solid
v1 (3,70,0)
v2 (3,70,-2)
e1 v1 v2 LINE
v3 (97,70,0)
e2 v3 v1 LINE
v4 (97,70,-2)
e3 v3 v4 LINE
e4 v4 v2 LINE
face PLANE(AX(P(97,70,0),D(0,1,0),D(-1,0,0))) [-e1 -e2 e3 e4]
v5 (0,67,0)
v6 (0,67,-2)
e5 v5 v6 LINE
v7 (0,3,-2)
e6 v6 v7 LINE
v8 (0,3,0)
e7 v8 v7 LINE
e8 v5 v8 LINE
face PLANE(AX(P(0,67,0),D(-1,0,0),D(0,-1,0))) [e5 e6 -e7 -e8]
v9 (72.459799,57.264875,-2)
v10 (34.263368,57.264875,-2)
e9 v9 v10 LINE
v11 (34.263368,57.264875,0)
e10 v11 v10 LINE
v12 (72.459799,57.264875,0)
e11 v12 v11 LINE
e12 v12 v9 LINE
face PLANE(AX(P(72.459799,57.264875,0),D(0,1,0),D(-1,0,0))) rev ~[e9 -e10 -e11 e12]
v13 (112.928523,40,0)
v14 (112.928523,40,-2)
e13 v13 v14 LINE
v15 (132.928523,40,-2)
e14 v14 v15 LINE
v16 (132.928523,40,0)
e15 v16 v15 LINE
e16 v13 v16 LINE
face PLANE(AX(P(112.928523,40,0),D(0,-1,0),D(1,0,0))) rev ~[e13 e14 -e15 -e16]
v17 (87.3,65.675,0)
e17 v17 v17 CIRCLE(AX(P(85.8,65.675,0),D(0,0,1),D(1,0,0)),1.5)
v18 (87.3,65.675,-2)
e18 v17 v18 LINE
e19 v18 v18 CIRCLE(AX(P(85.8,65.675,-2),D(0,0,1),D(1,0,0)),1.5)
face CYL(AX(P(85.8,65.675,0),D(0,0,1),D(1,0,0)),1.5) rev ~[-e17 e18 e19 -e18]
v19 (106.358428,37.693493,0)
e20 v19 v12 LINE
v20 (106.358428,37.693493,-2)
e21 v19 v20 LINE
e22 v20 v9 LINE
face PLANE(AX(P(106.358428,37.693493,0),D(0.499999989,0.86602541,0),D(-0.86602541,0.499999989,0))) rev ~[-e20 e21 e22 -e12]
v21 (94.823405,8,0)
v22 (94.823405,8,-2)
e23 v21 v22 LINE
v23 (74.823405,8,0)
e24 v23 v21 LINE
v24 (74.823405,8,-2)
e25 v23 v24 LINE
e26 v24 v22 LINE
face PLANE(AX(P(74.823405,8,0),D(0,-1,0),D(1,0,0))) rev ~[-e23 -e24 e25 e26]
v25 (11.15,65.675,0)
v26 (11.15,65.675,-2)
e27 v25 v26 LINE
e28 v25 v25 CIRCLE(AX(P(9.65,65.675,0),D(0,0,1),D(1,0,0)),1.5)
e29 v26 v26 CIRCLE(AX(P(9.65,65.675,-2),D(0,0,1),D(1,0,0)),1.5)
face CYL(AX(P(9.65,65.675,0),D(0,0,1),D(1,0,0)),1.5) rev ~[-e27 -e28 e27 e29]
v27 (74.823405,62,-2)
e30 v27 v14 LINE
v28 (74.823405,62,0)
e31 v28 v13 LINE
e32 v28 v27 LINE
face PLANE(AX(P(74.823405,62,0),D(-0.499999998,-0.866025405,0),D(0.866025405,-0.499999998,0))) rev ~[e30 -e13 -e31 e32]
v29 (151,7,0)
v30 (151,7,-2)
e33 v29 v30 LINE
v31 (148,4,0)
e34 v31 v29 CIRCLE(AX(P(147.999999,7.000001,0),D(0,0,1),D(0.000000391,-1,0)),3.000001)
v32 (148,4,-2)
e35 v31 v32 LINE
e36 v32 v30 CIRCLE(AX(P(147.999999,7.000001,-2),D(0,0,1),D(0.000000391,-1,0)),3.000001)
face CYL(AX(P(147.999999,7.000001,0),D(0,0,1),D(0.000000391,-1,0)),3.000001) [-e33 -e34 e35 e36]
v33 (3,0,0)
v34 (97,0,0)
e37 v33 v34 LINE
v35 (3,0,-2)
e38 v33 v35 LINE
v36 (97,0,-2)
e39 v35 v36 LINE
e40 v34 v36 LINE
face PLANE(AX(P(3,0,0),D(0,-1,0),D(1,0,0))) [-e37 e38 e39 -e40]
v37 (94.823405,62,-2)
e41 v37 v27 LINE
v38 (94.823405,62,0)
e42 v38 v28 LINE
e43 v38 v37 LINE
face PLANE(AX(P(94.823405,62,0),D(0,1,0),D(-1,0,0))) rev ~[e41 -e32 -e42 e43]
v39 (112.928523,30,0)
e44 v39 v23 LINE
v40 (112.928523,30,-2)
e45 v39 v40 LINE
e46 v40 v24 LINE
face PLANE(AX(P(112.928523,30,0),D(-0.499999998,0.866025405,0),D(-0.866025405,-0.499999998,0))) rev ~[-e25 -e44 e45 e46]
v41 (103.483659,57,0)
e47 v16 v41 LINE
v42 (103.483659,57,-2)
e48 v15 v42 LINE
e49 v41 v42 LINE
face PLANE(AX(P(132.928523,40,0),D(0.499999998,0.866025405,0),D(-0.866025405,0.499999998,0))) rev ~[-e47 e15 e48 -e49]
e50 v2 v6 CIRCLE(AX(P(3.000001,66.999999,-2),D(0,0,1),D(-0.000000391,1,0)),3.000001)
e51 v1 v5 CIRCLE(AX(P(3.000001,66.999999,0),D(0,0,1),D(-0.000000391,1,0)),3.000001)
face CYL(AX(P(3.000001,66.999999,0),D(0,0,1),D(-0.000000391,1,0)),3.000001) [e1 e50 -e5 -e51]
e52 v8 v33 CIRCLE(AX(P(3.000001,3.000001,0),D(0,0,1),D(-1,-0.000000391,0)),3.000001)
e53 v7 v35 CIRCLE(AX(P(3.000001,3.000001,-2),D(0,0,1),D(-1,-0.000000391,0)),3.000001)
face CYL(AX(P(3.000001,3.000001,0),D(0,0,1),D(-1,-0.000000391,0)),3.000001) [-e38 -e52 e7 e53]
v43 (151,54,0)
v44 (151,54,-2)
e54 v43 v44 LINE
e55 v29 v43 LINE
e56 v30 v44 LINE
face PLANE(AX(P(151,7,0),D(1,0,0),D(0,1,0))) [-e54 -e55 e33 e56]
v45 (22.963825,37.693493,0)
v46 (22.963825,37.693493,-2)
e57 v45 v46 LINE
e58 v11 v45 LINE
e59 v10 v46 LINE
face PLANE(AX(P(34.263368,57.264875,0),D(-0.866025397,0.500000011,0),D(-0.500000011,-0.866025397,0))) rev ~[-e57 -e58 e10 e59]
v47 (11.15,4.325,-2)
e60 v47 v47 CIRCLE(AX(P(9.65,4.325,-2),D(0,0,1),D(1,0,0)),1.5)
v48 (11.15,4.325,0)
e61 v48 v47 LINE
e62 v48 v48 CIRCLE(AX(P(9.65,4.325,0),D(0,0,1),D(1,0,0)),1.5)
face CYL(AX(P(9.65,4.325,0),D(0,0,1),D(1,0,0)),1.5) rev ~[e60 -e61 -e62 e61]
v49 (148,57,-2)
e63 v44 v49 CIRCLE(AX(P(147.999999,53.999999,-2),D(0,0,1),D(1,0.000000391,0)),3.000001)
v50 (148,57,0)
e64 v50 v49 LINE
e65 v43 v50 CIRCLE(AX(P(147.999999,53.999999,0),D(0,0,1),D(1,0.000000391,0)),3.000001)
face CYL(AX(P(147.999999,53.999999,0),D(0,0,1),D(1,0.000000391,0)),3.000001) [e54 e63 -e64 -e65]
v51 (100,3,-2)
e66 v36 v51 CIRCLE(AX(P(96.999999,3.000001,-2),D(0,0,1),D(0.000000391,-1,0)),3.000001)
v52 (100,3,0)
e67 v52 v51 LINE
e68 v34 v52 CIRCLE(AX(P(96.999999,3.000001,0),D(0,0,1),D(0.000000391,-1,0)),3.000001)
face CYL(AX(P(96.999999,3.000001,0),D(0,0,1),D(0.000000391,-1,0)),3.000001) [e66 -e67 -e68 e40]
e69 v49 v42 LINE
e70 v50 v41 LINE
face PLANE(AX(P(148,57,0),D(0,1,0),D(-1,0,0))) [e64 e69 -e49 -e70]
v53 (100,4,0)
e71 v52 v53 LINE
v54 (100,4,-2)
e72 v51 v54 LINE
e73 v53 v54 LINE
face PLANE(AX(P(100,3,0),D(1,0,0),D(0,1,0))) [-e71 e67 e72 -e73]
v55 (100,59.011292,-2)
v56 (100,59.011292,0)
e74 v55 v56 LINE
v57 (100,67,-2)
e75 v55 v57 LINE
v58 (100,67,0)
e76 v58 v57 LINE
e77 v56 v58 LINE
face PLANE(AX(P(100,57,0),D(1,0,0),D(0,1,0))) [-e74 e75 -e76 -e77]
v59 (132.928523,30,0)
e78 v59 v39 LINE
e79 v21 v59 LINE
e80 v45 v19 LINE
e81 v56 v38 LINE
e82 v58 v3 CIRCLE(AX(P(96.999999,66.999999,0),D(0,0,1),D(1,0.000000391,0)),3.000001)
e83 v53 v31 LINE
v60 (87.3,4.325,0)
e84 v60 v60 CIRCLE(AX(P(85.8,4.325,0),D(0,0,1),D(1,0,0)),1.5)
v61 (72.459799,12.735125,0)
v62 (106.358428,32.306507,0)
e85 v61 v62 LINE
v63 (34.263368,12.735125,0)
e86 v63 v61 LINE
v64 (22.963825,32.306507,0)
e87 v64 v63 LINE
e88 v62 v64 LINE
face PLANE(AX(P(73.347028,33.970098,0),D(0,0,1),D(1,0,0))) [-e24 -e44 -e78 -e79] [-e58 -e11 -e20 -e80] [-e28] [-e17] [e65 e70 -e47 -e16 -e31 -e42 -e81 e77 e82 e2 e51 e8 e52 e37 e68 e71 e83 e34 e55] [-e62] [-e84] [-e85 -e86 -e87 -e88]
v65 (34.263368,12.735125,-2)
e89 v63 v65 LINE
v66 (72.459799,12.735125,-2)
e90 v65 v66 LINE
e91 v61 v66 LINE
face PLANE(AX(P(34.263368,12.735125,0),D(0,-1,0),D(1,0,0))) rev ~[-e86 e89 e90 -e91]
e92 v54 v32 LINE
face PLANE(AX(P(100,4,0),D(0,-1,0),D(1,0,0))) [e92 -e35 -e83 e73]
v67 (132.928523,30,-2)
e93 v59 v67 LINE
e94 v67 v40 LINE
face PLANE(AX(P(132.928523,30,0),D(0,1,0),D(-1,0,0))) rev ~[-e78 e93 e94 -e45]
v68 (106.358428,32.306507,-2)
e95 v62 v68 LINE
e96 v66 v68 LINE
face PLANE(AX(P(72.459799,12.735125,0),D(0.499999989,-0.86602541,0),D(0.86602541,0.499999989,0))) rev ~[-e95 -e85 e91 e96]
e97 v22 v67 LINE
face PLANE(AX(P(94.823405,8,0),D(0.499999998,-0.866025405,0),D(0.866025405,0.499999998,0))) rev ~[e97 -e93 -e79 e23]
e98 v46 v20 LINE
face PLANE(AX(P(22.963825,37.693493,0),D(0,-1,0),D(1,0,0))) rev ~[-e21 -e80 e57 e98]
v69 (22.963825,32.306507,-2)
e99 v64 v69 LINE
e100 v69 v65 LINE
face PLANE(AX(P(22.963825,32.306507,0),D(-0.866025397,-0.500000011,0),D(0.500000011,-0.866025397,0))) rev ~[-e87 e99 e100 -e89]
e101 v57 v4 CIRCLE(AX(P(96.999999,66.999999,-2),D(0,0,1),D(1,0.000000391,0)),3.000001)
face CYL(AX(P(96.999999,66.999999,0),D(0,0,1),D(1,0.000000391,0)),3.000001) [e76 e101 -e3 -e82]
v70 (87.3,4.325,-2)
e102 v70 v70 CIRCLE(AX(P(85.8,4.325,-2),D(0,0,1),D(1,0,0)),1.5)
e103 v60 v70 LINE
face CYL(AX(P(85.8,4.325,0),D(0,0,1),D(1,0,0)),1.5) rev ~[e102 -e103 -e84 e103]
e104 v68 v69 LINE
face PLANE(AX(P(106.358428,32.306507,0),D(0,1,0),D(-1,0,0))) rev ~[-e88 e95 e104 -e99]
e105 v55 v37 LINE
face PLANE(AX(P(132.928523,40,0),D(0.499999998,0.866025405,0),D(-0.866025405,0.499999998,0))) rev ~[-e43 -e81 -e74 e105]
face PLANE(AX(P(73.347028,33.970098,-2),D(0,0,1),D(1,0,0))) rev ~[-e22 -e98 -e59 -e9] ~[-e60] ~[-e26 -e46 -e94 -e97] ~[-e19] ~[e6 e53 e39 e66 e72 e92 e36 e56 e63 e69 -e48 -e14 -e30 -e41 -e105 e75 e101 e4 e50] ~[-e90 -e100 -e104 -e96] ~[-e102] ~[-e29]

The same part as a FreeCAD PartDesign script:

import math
import FreeCAD as App
import Part
import Sketcher
Q = App.Units.Quantity

doc = App.newDocument("Part")
body = doc.addObject("PartDesign::Body", "Body")

sketch1 = body.newObject("Sketcher::SketchObject", "Sketch")
sketch1.AttachmentSupport = (doc.getObject("XY_Plane"), [""])
sketch1.MapMode = "FlatFace"
sketch1.addGeometry(Part.LineSegment(App.Vector(97, 70, 0), App.Vector(3, 70, 0)), False)
sketch1.addGeometry(Part.ArcOfCircle(Part.Circle(App.Vector(3, 67, 0), App.Vector(0, 0, 1), 3), math.radians(90), math.radians(180)), False)
sketch1.addGeometry(Part.LineSegment(App.Vector(0, 67, 0), App.Vector(0, 3, 0)), False)
sketch1.addGeometry(Part.ArcOfCircle(Part.Circle(App.Vector(3, 3, 0), App.Vector(0, 0, 1), 3), math.radians(-180), math.radians(-90)), False)
sketch1.addGeometry(Part.LineSegment(App.Vector(3, 0, 0), App.Vector(97, 0, 0)), False)
sketch1.addGeometry(Part.ArcOfCircle(Part.Circle(App.Vector(97, 3, 0), App.Vector(0, 0, 1), 3), math.radians(-90), math.radians(0)), False)
sketch1.addGeometry(Part.LineSegment(App.Vector(100, 3, 0), App.Vector(100, 4, 0)), False)
sketch1.addGeometry(Part.LineSegment(App.Vector(100, 4, 0), App.Vector(148, 4, 0)), False)
sketch1.addGeometry(Part.ArcOfCircle(Part.Circle(App.Vector(148, 7, 0), App.Vector(0, 0, 1), 3), math.radians(-90), math.radians(0)), False)
sketch1.addGeometry(Part.LineSegment(App.Vector(151, 7, 0), App.Vector(151, 54, 0)), False)
sketch1.addGeometry(Part.ArcOfCircle(Part.Circle(App.Vector(148, 54, 0), App.Vector(0, 0, 1), 3), math.radians(0), math.radians(90)), False)
sketch1.addGeometry(Part.LineSegment(App.Vector(148, 57, 0), App.Vector(100, 57, 0)), False)
sketch1.addGeometry(Part.LineSegment(App.Vector(100, 57, 0), App.Vector(100, 67, 0)), False)
sketch1.addGeometry(Part.ArcOfCircle(Part.Circle(App.Vector(97, 67, 0), App.Vector(0, 0, 1), 3), math.radians(0), math.radians(90)), False)
sketch1.addGeometry(Part.Circle(App.Vector(9.7, 4.3, 0), App.Vector(0, 0, 1), 1.5), False)
sketch1.addGeometry(Part.Circle(App.Vector(85.8, 4.3, 0), App.Vector(0, 0, 1), 1.5), False)
sketch1.addGeometry(Part.Circle(App.Vector(9.7, 65.7, 0), App.Vector(0, 0, 1), 1.5), False)
sketch1.addGeometry(Part.Circle(App.Vector(85.8, 65.7, 0), App.Vector(0, 0, 1), 1.5), False)
sketch1.addConstraint(Sketcher.Constraint("Tangent", 0, 2, 1, 1))
sketch1.addConstraint(Sketcher.Constraint("Tangent", 1, 2, 2, 1))
sketch1.addConstraint(Sketcher.Constraint("Tangent", 2, 2, 3, 1))
sketch1.addConstraint(Sketcher.Constraint("Tangent", 3, 2, 4, 1))
sketch1.addConstraint(Sketcher.Constraint("Tangent", 4, 2, 5, 1))
sketch1.addConstraint(Sketcher.Constraint("Tangent", 5, 2, 6, 1))
sketch1.addConstraint(Sketcher.Constraint("Coincident", 6, 2, 7, 1))
sketch1.addConstraint(Sketcher.Constraint("Tangent", 7, 2, 8, 1))
sketch1.addConstraint(Sketcher.Constraint("Tangent", 8, 2, 9, 1))
sketch1.addConstraint(Sketcher.Constraint("Tangent", 9, 2, 10, 1))
sketch1.addConstraint(Sketcher.Constraint("Tangent", 10, 2, 11, 1))
sketch1.addConstraint(Sketcher.Constraint("Coincident", 11, 2, 12, 1))
sketch1.addConstraint(Sketcher.Constraint("Tangent", 12, 2, 13, 1))
sketch1.addConstraint(Sketcher.Constraint("Tangent", 13, 2, 0, 1))
sketch1.addConstraint(Sketcher.Constraint("Horizontal", 0))
sketch1.addConstraint(Sketcher.Constraint("Vertical", 2))
sketch1.addConstraint(Sketcher.Constraint("Horizontal", 4))
sketch1.addConstraint(Sketcher.Constraint("Vertical", 6))
sketch1.addConstraint(Sketcher.Constraint("Horizontal", 7))
sketch1.addConstraint(Sketcher.Constraint("Vertical", 9))
sketch1.addConstraint(Sketcher.Constraint("Horizontal", 11))
sketch1.addConstraint(Sketcher.Constraint("Vertical", 12))
sketch1.addConstraint(Sketcher.Constraint("Equal", 1, 3))
sketch1.addConstraint(Sketcher.Constraint("Equal", 3, 5))
sketch1.addConstraint(Sketcher.Constraint("Equal", 5, 8))
sketch1.addConstraint(Sketcher.Constraint("Equal", 8, 10))
sketch1.addConstraint(Sketcher.Constraint("Equal", 10, 13))
sketch1.addConstraint(Sketcher.Constraint("Equal", 14, 15))
sketch1.addConstraint(Sketcher.Constraint("Equal", 15, 16))
sketch1.addConstraint(Sketcher.Constraint("Equal", 16, 17))
sketch1.addConstraint(Sketcher.Constraint("PointOnObject", 1, 2, -2))
sketch1.addConstraint(Sketcher.Constraint("PointOnObject", 3, 2, -1))
sketch1.addConstraint(Sketcher.Constraint("Horizontal", 14, 3, 15, 3))
sketch1.addConstraint(Sketcher.Constraint("Horizontal", 16, 3, 17, 3))
sketch1.addConstraint(Sketcher.Constraint("Vertical", 5, 3, 13, 3))
sketch1.addConstraint(Sketcher.Constraint("Vertical", 14, 3, 16, 3))
sketch1.addConstraint(Sketcher.Constraint("Vertical", 15, 3, 17, 3))
sketch1.addConstraint(Sketcher.Constraint("Diameter", 14, 3.0))
sketch1.addConstraint(Sketcher.Constraint("Radius", 1, 3.000001))
sketch1.addConstraint(Sketcher.Constraint("DistanceX", 0, 2, 0, 1, 94.0))
sketch1.addConstraint(Sketcher.Constraint("DistanceX", 7, 1, 7, 2, 48.0))
sketch1.addConstraint(Sketcher.Constraint("DistanceY", 2, 2, 2, 1, 64.0))
sketch1.addConstraint(Sketcher.Constraint("DistanceY", 6, 1, 6, 2, 1.0))
sketch1.addConstraint(Sketcher.Constraint("DistanceY", 9, 1, 9, 2, 47.0))
sketch1.addConstraint(Sketcher.Constraint("DistanceX", -1, 1, 15, 3, 85.8))
sketch1.addConstraint(Sketcher.Constraint("DistanceX", -1, 1, 14, 3, 9.65))
sketch1.addConstraint(Sketcher.Constraint("DistanceY", 14, 3, 16, 3, 61.35))
sketch1.addConstraint(Sketcher.Constraint("DistanceY", -1, 1, 14, 3, 4.325))
pad1 = body.newObject("PartDesign::Pad", "Pad")
pad1.Profile = sketch1
pad1.Length = 2
pad1.Reversed = True

sketch2 = body.newObject("Sketcher::SketchObject", "Sketch001")
sketch2.AttachmentSupport = (doc.getObject("XY_Plane"), [""])
sketch2.MapMode = "FlatFace"
sketch2.AttachmentOffset = App.Placement(App.Vector(0, 0, -2), App.Rotation())
sketch2.addGeometry(Part.Circle(App.Vector(9.7, 65.7, 0), App.Vector(0, 0, 1), 3), False)
sketch2.addGeometry(Part.Circle(App.Vector(9.7, 65.7, 0), App.Vector(0, 0, 1), 1.5), False)
sketch2.addGeometry(Part.Circle(App.Vector(85.8, 65.7, 0), App.Vector(0, 0, 1), 3), False)
sketch2.addGeometry(Part.Circle(App.Vector(85.8, 65.7, 0), App.Vector(0, 0, 1), 1.5), False)
sketch2.addGeometry(Part.Circle(App.Vector(9.7, 4.3, 0), App.Vector(0, 0, 1), 3), False)
sketch2.addGeometry(Part.Circle(App.Vector(9.7, 4.3, 0), App.Vector(0, 0, 1), 1.5), False)
sketch2.addGeometry(Part.Circle(App.Vector(85.8, 4.3, 0), App.Vector(0, 0, 1), 3), False)
sketch2.addGeometry(Part.Circle(App.Vector(85.8, 4.3, 0), App.Vector(0, 0, 1), 1.5), False)
sketch2.addConstraint(Sketcher.Constraint("Coincident", 1, 3, 0, 3))
sketch2.addConstraint(Sketcher.Constraint("Coincident", 3, 3, 2, 3))
sketch2.addConstraint(Sketcher.Constraint("Coincident", 5, 3, 4, 3))
sketch2.addConstraint(Sketcher.Constraint("Coincident", 7, 3, 6, 3))
sketch2.addConstraint(Sketcher.Constraint("Equal", 0, 2))
sketch2.addConstraint(Sketcher.Constraint("Equal", 1, 3))
sketch2.addConstraint(Sketcher.Constraint("Equal", 2, 4))
sketch2.addConstraint(Sketcher.Constraint("Equal", 3, 5))
sketch2.addConstraint(Sketcher.Constraint("Equal", 4, 6))
sketch2.addConstraint(Sketcher.Constraint("Equal", 5, 7))
sketch2.addConstraint(Sketcher.Constraint("Horizontal", 1, 3, 2, 3))
sketch2.addConstraint(Sketcher.Constraint("Horizontal", 5, 3, 6, 3))
sketch2.addConstraint(Sketcher.Constraint("Vertical", 1, 3, 4, 3))
sketch2.addConstraint(Sketcher.Constraint("Vertical", 3, 3, 6, 3))
sketch2.addConstraint(Sketcher.Constraint("Diameter", 0, 6.0))
sketch2.addConstraint(Sketcher.Constraint("Diameter", 1, 3.0))
sketch2.addConstraint(Sketcher.Constraint("DistanceX", -1, 1, 2, 3, 85.8))
sketch2.addConstraint(Sketcher.Constraint("DistanceX", -1, 1, 0, 3, 9.65))
sketch2.addConstraint(Sketcher.Constraint("DistanceY", 4, 3, 0, 3, 61.35))
sketch2.addConstraint(Sketcher.Constraint("DistanceY", -1, 1, 0, 3, 65.675))
pad2 = body.newObject("PartDesign::Pad", "Pad001")
pad2.Profile = sketch2
pad2.Length = 2

sketch3 = body.newObject("Sketcher::SketchObject", "Sketch002")
sketch3.AttachmentSupport = (doc.getObject("XY_Plane"), [""])
sketch3.MapMode = "FlatFace"
sketch3.addGeometry(Part.LineSegment(App.Vector(34, 13, 0), App.Vector(72, 13, 0)), False)
sketch3.addGeometry(Part.LineSegment(App.Vector(72, 13, 0), App.Vector(106, 32, 0)), False)
sketch3.addGeometry(Part.LineSegment(App.Vector(106, 32, 0), App.Vector(23, 32, 0)), False)
sketch3.addGeometry(Part.LineSegment(App.Vector(23, 32, 0), App.Vector(34, 13, 0)), False)
sketch3.addGeometry(Part.LineSegment(App.Vector(106, 38, 0), App.Vector(72, 57, 0)), False)
sketch3.addGeometry(Part.LineSegment(App.Vector(72, 57, 0), App.Vector(34, 57, 0)), False)
sketch3.addGeometry(Part.LineSegment(App.Vector(34, 57, 0), App.Vector(23, 38, 0)), False)
sketch3.addGeometry(Part.LineSegment(App.Vector(23, 38, 0), App.Vector(106, 38, 0)), False)
sketch3.addGeometry(Part.LineSegment(App.Vector(95, 8, 0), App.Vector(133, 30, 0)), False)
sketch3.addGeometry(Part.LineSegment(App.Vector(133, 30, 0), App.Vector(113, 30, 0)), False)
sketch3.addGeometry(Part.LineSegment(App.Vector(113, 30, 0), App.Vector(75, 8, 0)), False)
sketch3.addGeometry(Part.LineSegment(App.Vector(75, 8, 0), App.Vector(95, 8, 0)), False)
sketch3.addGeometry(Part.LineSegment(App.Vector(113, 40, 0), App.Vector(133, 40, 0)), False)
sketch3.addGeometry(Part.LineSegment(App.Vector(133, 40, 0), App.Vector(95, 62, 0)), False)
sketch3.addGeometry(Part.LineSegment(App.Vector(95, 62, 0), App.Vector(75, 62, 0)), False)
sketch3.addGeometry(Part.LineSegment(App.Vector(75, 62, 0), App.Vector(113, 40, 0)), False)
sketch3.addConstraint(Sketcher.Constraint("Coincident", 0, 2, 1, 1))
sketch3.addConstraint(Sketcher.Constraint("Coincident", 1, 2, 2, 1))
sketch3.addConstraint(Sketcher.Constraint("Coincident", 2, 2, 3, 1))
sketch3.addConstraint(Sketcher.Constraint("Coincident", 3, 2, 0, 1))
sketch3.addConstraint(Sketcher.Constraint("Coincident", 4, 2, 5, 1))
sketch3.addConstraint(Sketcher.Constraint("Coincident", 5, 2, 6, 1))
sketch3.addConstraint(Sketcher.Constraint("Coincident", 6, 2, 7, 1))
sketch3.addConstraint(Sketcher.Constraint("Coincident", 7, 2, 4, 1))
sketch3.addConstraint(Sketcher.Constraint("Coincident", 8, 2, 9, 1))
sketch3.addConstraint(Sketcher.Constraint("Coincident", 9, 2, 10, 1))
sketch3.addConstraint(Sketcher.Constraint("Coincident", 10, 2, 11, 1))
sketch3.addConstraint(Sketcher.Constraint("Coincident", 11, 2, 8, 1))
sketch3.addConstraint(Sketcher.Constraint("Coincident", 12, 2, 13, 1))
sketch3.addConstraint(Sketcher.Constraint("Coincident", 13, 2, 14, 1))
sketch3.addConstraint(Sketcher.Constraint("Coincident", 14, 2, 15, 1))
sketch3.addConstraint(Sketcher.Constraint("Coincident", 15, 2, 12, 1))
sketch3.addConstraint(Sketcher.Constraint("Horizontal", 0))
sketch3.addConstraint(Sketcher.Constraint("Horizontal", 2))
sketch3.addConstraint(Sketcher.Constraint("Horizontal", 5))
sketch3.addConstraint(Sketcher.Constraint("Horizontal", 7))
sketch3.addConstraint(Sketcher.Constraint("Horizontal", 9))
sketch3.addConstraint(Sketcher.Constraint("Horizontal", 11))
sketch3.addConstraint(Sketcher.Constraint("Horizontal", 12))
sketch3.addConstraint(Sketcher.Constraint("Horizontal", 14))
sketch3.addConstraint(Sketcher.Constraint("Perpendicular", 1, 3))
sketch3.addConstraint(Sketcher.Constraint("Perpendicular", 4, 6))
sketch3.addConstraint(Sketcher.Constraint("Perpendicular", 3, 8))
sketch3.addConstraint(Sketcher.Constraint("Parallel", 8, 10))
sketch3.addConstraint(Sketcher.Constraint("Perpendicular", 6, 13))
sketch3.addConstraint(Sketcher.Constraint("Parallel", 13, 15))
sketch3.addConstraint(Sketcher.Constraint("Vertical", 0, 2, 4, 2))
sketch3.addConstraint(Sketcher.Constraint("Vertical", 3, 2, 5, 2))
sketch3.addConstraint(Sketcher.Constraint("Vertical", 2, 2, 6, 2))
sketch3.addConstraint(Sketcher.Constraint("Vertical", 1, 2, 7, 2))
sketch3.addConstraint(Sketcher.Constraint("Vertical", 8, 2, 12, 2))
sketch3.addConstraint(Sketcher.Constraint("Vertical", 11, 2, 13, 2))
sketch3.addConstraint(Sketcher.Constraint("Vertical", 10, 2, 14, 2))
sketch3.addConstraint(Sketcher.Constraint("DistanceX", 9, 2, 9, 1, 20.0))
sketch3.addConstraint(Sketcher.Constraint("Angle", 1, Q("29.999999 deg")))
sketch3.addConstraint(Sketcher.Constraint("Distance", 8, 44.0))
sketch3.addConstraint(Sketcher.Constraint("DistanceY", -1, 1, 8, 2, 30.0))
sketch3.addConstraint(Sketcher.Constraint("DistanceY", -1, 1, 12, 2, 40.0))
sketch3.addConstraint(Sketcher.Constraint("DistanceX", 0, 1, 0, 2, 38.196431))
sketch3.addConstraint(Sketcher.Constraint("DistanceX", -1, 1, 0, 2, 72.459799))
sketch3.addConstraint(Sketcher.Constraint("DistanceX", 2, 2, 2, 1, 83.394603))
sketch3.addConstraint(Sketcher.Constraint("DistanceY", 1, 2, 4, 2, 24.958368))
sketch3.addConstraint(Sketcher.Constraint("DistanceY", -1, 1, 0, 2, 12.735125))
sketch3.addConstraint(Sketcher.Constraint("DistanceX", -1, 1, 8, 2, 132.928523))
pocket1 = body.newObject("PartDesign::Pocket", "Pocket")
pocket1.Profile = sketch3
pocket1.Length = 2

doc.recompute()
